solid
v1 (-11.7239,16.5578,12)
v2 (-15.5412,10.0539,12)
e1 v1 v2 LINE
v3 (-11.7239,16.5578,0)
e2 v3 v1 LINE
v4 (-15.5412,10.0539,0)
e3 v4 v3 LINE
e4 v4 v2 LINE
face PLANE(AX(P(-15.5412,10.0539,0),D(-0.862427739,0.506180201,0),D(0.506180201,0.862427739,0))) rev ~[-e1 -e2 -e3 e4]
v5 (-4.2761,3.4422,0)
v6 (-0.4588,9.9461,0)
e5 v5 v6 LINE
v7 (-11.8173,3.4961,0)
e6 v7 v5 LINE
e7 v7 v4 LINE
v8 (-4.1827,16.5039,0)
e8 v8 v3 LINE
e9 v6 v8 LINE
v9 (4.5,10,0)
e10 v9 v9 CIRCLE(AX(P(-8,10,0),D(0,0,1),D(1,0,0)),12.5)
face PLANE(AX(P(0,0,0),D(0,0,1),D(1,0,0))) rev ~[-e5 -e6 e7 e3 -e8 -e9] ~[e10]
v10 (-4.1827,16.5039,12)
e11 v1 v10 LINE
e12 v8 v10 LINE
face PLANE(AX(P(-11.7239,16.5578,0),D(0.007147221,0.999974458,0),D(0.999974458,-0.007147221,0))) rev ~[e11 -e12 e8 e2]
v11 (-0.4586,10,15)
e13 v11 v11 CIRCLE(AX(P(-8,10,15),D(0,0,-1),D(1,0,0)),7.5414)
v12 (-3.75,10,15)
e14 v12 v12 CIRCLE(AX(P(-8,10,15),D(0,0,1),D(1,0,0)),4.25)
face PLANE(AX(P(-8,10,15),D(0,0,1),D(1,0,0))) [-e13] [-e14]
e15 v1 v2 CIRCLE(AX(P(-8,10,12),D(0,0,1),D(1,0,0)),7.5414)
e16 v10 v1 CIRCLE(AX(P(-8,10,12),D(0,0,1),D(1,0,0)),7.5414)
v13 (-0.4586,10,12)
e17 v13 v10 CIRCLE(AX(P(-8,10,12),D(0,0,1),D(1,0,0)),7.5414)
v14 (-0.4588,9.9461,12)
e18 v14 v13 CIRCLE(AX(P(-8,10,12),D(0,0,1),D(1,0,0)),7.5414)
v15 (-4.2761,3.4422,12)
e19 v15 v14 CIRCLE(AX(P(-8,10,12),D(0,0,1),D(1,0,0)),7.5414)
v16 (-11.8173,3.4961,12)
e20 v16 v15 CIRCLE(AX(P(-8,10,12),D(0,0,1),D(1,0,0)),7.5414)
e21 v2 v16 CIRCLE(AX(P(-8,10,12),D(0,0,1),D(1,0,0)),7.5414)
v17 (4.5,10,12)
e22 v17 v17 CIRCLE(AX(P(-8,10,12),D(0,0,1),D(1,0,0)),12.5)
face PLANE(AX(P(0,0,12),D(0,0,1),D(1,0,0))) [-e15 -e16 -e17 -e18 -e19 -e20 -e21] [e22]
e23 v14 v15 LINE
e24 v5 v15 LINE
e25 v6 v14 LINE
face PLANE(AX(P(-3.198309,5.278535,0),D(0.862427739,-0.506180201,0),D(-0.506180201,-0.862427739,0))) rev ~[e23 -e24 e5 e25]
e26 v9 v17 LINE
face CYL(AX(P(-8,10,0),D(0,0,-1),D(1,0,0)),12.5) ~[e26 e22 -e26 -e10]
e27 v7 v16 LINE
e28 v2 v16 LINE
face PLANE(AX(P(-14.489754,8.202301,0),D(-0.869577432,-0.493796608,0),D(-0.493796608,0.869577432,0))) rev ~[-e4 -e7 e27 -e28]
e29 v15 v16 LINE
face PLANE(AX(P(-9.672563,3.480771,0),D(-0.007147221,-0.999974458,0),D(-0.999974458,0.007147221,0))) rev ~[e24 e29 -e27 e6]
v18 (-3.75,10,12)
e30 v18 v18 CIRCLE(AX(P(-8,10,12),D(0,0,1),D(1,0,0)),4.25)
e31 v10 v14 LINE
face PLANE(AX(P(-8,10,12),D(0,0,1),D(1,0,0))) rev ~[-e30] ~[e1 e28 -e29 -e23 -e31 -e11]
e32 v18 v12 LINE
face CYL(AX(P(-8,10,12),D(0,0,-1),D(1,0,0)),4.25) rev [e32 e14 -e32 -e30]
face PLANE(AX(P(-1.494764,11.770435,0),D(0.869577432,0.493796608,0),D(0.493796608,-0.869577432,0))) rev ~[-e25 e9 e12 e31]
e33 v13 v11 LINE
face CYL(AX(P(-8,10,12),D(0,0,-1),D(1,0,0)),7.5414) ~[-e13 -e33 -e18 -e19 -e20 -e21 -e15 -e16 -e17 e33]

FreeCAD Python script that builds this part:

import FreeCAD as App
import Part
import Sketcher
Q = App.Units.Quantity


def add_polygon(sketch, points):
    """Adds a closed chain of lines whose ends are joined by coincident constraints."""
    first, n = sketch.GeometryCount, len(points)
    for a, b in zip(points, points[1:] + points[:1]):
        sketch.addGeometry(Part.LineSegment(App.Vector(*a, 0), App.Vector(*b, 0)), False)
    for i in range(n):
        sketch.addConstraint(Sketcher.Constraint("Coincident", first + i, 2, first + (i + 1) % n, 1))

doc = App.newDocument("Part")
body = doc.addObject("PartDesign::Body", "Body")

sketch1 = body.newObject("Sketcher::SketchObject", "Sketch")
sketch1.AttachmentSupport = (doc.getObject("XY_Plane"), [""])
sketch1.MapMode = "FlatFace"
sketch1.addGeometry(Part.Circle(App.Vector(-8, 10, 0), App.Vector(0, 0, 1), 12), False)
add_polygon(sketch1, [(-16, 10), (-12, 17), (-4, 17), (0, 10), (-4, 3), (-12, 3)])
sketch1.addConstraint([
    Sketcher.Constraint("Parallel", 1, 4),
    Sketcher.Constraint("Parallel", 2, 5),
    Sketcher.Constraint("Parallel", 3, 6),
    Sketcher.Constraint("Equal", 1, 2),
    Sketcher.Constraint("Equal", 2, 3),
    Sketcher.Constraint("Equal", 3, 4),
    Sketcher.Constraint("Diameter", 0, Q("25 mm")),
    Sketcher.Constraint("DistanceX", 0, 3, -1, 1, Q("8 mm")),
    Sketcher.Constraint("DistanceY", -1, 1, 0, 3, Q("10 mm")),
    Sketcher.Constraint("Angle", 1, Q("59.5903 deg")),
    Sketcher.Constraint("Angle", 2, Q("-0.4095 deg")),
    Sketcher.Constraint("Angle", 3, Q("-60.4096 deg")),
    Sketcher.Constraint("DistanceY", 5, 2, 3, 2, Q("6.45 mm")),
    Sketcher.Constraint("DistanceX", 1, 2, -1, 1, Q("11.724 mm")),
    Sketcher.Constraint("DistanceY", -1, 1, 2, 2, Q("16.504 mm")),
])
pad1 = body.newObject("PartDesign::Pad", "Pad")
pad1.Profile = sketch1
pad1.Length = 12

sketch2 = body.newObject("Sketcher::SketchObject", "Sketch001")
sketch2.AttachmentSupport = (doc.getObject("XY_Plane"), [""])
sketch2.MapMode = "FlatFace"
sketch2.AttachmentOffset = App.Placement(App.Vector(0, 0, 12), App.Rotation())
sketch2.addGeometry([
    Part.Circle(App.Vector(-8, 10, 0), App.Vector(0, 0, 1), 7.5),
    Part.Circle(App.Vector(-8, 10, 0), App.Vector(0, 0, 1), 4.2),
], False)
sketch2.addConstraint([
    Sketcher.Constraint("Coincident", 1, 3, 0, 3),
    Sketcher.Constraint("Diameter", 1, Q("8.5 mm")),
    Sketcher.Constraint("DistanceX", 0, 3, -1, 1, Q("8 mm")),
    Sketcher.Constraint("DistanceY", -1, 1, 0, 3, Q("10 mm")),
    Sketcher.Constraint("Diameter", 0, Q("15.0828 mm")),
])
pad2 = body.newObject("PartDesign::Pad", "Pad001")
pad2.Profile = sketch2
pad2.Length = 3

doc.recompute()
